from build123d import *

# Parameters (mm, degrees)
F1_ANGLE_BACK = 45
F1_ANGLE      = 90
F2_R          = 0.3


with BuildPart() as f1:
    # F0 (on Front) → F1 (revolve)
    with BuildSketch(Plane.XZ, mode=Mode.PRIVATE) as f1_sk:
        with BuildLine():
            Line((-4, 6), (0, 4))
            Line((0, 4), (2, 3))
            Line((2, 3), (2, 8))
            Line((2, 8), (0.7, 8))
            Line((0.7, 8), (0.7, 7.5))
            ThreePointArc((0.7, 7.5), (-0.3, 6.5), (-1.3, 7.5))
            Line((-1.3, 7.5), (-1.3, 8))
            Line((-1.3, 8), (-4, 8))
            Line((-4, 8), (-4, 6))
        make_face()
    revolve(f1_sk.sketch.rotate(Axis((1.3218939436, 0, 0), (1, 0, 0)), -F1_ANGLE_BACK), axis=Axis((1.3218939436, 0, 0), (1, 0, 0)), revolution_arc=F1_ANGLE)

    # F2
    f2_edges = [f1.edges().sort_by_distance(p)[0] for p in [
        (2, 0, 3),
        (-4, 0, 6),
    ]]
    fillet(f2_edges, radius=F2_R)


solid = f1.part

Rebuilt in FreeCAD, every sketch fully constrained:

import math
import FreeCAD as App
import Part
import Sketcher
from FreeCAD import Vector
Q = App.Units.Quantity


def edges_at(feature, points):
    """Names of the edges that pass closest to the given points."""
    edges = feature.Shape.Edges
    near = lambda p: min(range(len(edges)), key=lambda i: edges[i].distToShape(Part.Vertex(*p))[0])
    return sorted({f"Edge{near(p) + 1}" for p in points})

doc = App.newDocument("Part")
params = doc.addObject("Spreadsheet::Sheet", "Params")
for row, (alias, value) in enumerate([
    ("sketch1_radius", "1 mm"),
    ("sketch1_height", "5 mm"),
    ("sketch1_height2", "2 mm"),
    ("sketch1_width", "1.3 mm"),
    ("sketch1_width2", "2.7 mm"),
    ("revolution_angle", "90 deg"),
    ("fillet_radius", "0.3 mm"),
], start=1):
    params.set(f"A{row}", alias)
    params.set(f"B{row}", "=" + value)
    params.setAlias(f"B{row}", alias)

body = doc.addObject("PartDesign::Body", "Body")

sketch1 = body.newObject("Sketcher::SketchObject", "Sketch")
sketch1.Placement = App.Placement(Vector(0, 0, 0), App.Rotation(Vector(1, 0, 0), Vector(0, 0.707106781, 0.707106781), Vector(0, -0.707106781, 0.707106781), "ZXY"))
sketch1.addGeometry([
    Part.LineSegment(Vector(-4, 6, 0), Vector(2, 3, 0)),
    Part.LineSegment(Vector(2, 3, 0), Vector(2, 8, 0)),
    Part.LineSegment(Vector(2, 8, 0), Vector(0.7, 8, 0)),
    Part.LineSegment(Vector(0.7, 8, 0), Vector(0.7, 7.5, 0)),
    Part.ArcOfCircle(Part.Circle(Vector(-0.3, 7.5, 0), Vector(0, 0, 1), 1), math.radians(180), math.radians(360)),
    Part.LineSegment(Vector(-1.3, 7.5, 0), Vector(-1.3, 8, 0)),
    Part.LineSegment(Vector(-1.3, 8, 0), Vector(-4, 8, 0)),
    Part.LineSegment(Vector(-4, 8, 0), Vector(-4, 6, 0)),
], False)
sketch1.addConstraint([
    Sketcher.Constraint("Coincident", 0, 2, 1, 1),
    Sketcher.Constraint("Coincident", 1, 2, 2, 1),
    Sketcher.Constraint("Coincident", 2, 2, 3, 1),
    Sketcher.Constraint("Tangent", 3, 2, 4, 2),
    Sketcher.Constraint("Tangent", 4, 1, 5, 1),
    Sketcher.Constraint("Coincident", 5, 2, 6, 1),
    Sketcher.Constraint("Coincident", 6, 2, 7, 1),
    Sketcher.Constraint("Coincident", 7, 2, 0, 1),
    Sketcher.Constraint("Vertical", 1),
    Sketcher.Constraint("Horizontal", 2),
    Sketcher.Constraint("Vertical", 3),
    Sketcher.Constraint("Vertical", 5),
    Sketcher.Constraint("Horizontal", 6),
    Sketcher.Constraint("Vertical", 7),
    Sketcher.Constraint("Horizontal", 2, 2, 5, 2),
    Sketcher.Constraint("Radius", 4, Q("1 mm")),
    Sketcher.Constraint("DistanceY", 1, 1, 1, 2, Q("5 mm")),
    Sketcher.Constraint("DistanceY", 7, 2, 7, 1, Q("2 mm")),
    Sketcher.Constraint("DistanceX", 2, 2, 2, 1, Q("1.3 mm")),
    Sketcher.Constraint("DistanceX", 6, 2, 6, 1, Q("2.7 mm")),
    Sketcher.Constraint("DistanceY", 3, 2, 3, 1, Q("0.5 mm")),
    Sketcher.Constraint("DistanceX", -1, 1, 0, 2, Q("2 mm")),
    Sketcher.Constraint("DistanceY", -1, 1, 0, 2, Q("3 mm")),
])
sketch1.setExpression("Constraints[15]", "Params.sketch1_radius")
sketch1.setExpression("Constraints[16]", "Params.sketch1_height")
sketch1.setExpression("Constraints[17]", "Params.sketch1_height2")
sketch1.setExpression("Constraints[18]", "Params.sketch1_width")
sketch1.setExpression("Constraints[19]", "Params.sketch1_width2")
revolution = body.newObject("PartDesign::Revolution", "Revolution")
revolution.Profile = sketch1
revolution.ReferenceAxis = (sketch1, ["H_Axis"])
revolution.setExpression("Angle", "Params.revolution_angle")
doc.recompute()

fillet = body.newObject("PartDesign::Fillet", "Fillet")
fillet.Base = (revolution, edges_at(revolution, [(2, 0, 3), (-4, 0, 6)]))
fillet.setExpression("Radius", "Params.fillet_radius")

doc.recompute()
